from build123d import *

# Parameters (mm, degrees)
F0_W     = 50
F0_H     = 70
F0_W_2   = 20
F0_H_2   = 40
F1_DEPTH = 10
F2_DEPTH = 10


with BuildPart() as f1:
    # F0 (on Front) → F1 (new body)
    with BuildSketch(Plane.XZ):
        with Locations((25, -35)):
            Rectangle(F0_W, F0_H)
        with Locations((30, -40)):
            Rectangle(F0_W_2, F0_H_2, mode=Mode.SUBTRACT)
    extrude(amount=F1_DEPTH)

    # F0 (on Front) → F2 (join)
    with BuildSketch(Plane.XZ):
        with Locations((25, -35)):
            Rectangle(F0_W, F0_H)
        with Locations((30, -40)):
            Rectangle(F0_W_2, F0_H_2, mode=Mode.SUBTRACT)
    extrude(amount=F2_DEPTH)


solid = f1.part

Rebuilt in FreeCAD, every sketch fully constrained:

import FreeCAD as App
import Part
import Sketcher


def add_polygon(sketch, points):
    """Adds a closed chain of lines whose ends are joined by coincident constraints."""
    first, n = sketch.GeometryCount, len(points)
    for a, b in zip(points, points[1:] + points[:1]):
        sketch.addGeometry(Part.LineSegment(App.Vector(*a, 0), App.Vector(*b, 0)), False)
    for i in range(n):
        sketch.addConstraint(Sketcher.Constraint("Coincident", first + i, 2, first + (i + 1) % n, 1))

doc = App.newDocument("Part")
body = doc.addObject("PartDesign::Body", "Body")

sketch1 = body.newObject("Sketcher::SketchObject", "Sketch")
sketch1.AttachmentSupport = (doc.getObject("XZ_Plane"), [""])
sketch1.MapMode = "FlatFace"
add_polygon(sketch1, [(0, 0), (0, -70), (50, -70), (50, 0)])
add_polygon(sketch1, [(40, -60), (20, -60), (20, -20), (40, -20)])
sketch1.addConstraint([
    Sketcher.Constraint("Vertical", 0),
    Sketcher.Constraint("Horizontal", 1),
    Sketcher.Constraint("Vertical", 2),
    Sketcher.Constraint("Horizontal", 3),
    Sketcher.Constraint("Horizontal", 4),
    Sketcher.Constraint("Vertical", 5),
    Sketcher.Constraint("Horizontal", 6),
    Sketcher.Constraint("Vertical", 7),
    Sketcher.Constraint("Coincident", 3, 2, -1, 1),
    Sketcher.Constraint("DistanceX", 1, 1, 1, 2, 50.0),
    Sketcher.Constraint("DistanceX", 4, 2, 4, 1, 20.0),
    Sketcher.Constraint("DistanceY", 0, 2, 0, 1, 70.0),
    Sketcher.Constraint("DistanceY", 5, 1, 5, 2, 40.0),
    Sketcher.Constraint("DistanceX", -1, 1, 4, 2, 20.0),
    Sketcher.Constraint("DistanceY", 4, 2, -1, 1, 60.0),
])
pad1 = body.newObject("PartDesign::Pad", "Pad")
pad1.Profile = sketch1
pad1.Length = 10

sketch2 = body.newObject("Sketcher::SketchObject", "Sketch001")
sketch2.AttachmentSupport = (doc.getObject("XZ_Plane"), [""])
sketch2.MapMode = "FlatFace"
add_polygon(sketch2, [(0, 0), (0, -70), (50, -70), (50, 0)])
add_polygon(sketch2, [(40, -60), (20, -60), (20, -20), (40, -20)])
sketch2.addConstraint([
    Sketcher.Constraint("Vertical", 0),
    Sketcher.Constraint("Horizontal", 1),
    Sketcher.Constraint("Vertical", 2),
    Sketcher.Constraint("Horizontal", 3),
    Sketcher.Constraint("Horizontal", 4),
    Sketcher.Constraint("Vertical", 5),
    Sketcher.Constraint("Horizontal", 6),
    Sketcher.Constraint("Vertical", 7),
    Sketcher.Constraint("Coincident", 3, 2, -1, 1),
    Sketcher.Constraint("DistanceX", 1, 1, 1, 2, 50.0),
    Sketcher.Constraint("DistanceX", 4, 2, 4, 1, 20.0),
    Sketcher.Constraint("DistanceY", 0, 2, 0, 1, 70.0),
    Sketcher.Constraint("DistanceY", 5, 1, 5, 2, 40.0),
    Sketcher.Constraint("DistanceX", -1, 1, 4, 2, 20.0),
    Sketcher.Constraint("DistanceY", 4, 2, -1, 1, 60.0),
])
pad2 = body.newObject("PartDesign::Pad", "Pad001")
pad2.Profile = sketch2
pad2.Length = 10

doc.recompute()
